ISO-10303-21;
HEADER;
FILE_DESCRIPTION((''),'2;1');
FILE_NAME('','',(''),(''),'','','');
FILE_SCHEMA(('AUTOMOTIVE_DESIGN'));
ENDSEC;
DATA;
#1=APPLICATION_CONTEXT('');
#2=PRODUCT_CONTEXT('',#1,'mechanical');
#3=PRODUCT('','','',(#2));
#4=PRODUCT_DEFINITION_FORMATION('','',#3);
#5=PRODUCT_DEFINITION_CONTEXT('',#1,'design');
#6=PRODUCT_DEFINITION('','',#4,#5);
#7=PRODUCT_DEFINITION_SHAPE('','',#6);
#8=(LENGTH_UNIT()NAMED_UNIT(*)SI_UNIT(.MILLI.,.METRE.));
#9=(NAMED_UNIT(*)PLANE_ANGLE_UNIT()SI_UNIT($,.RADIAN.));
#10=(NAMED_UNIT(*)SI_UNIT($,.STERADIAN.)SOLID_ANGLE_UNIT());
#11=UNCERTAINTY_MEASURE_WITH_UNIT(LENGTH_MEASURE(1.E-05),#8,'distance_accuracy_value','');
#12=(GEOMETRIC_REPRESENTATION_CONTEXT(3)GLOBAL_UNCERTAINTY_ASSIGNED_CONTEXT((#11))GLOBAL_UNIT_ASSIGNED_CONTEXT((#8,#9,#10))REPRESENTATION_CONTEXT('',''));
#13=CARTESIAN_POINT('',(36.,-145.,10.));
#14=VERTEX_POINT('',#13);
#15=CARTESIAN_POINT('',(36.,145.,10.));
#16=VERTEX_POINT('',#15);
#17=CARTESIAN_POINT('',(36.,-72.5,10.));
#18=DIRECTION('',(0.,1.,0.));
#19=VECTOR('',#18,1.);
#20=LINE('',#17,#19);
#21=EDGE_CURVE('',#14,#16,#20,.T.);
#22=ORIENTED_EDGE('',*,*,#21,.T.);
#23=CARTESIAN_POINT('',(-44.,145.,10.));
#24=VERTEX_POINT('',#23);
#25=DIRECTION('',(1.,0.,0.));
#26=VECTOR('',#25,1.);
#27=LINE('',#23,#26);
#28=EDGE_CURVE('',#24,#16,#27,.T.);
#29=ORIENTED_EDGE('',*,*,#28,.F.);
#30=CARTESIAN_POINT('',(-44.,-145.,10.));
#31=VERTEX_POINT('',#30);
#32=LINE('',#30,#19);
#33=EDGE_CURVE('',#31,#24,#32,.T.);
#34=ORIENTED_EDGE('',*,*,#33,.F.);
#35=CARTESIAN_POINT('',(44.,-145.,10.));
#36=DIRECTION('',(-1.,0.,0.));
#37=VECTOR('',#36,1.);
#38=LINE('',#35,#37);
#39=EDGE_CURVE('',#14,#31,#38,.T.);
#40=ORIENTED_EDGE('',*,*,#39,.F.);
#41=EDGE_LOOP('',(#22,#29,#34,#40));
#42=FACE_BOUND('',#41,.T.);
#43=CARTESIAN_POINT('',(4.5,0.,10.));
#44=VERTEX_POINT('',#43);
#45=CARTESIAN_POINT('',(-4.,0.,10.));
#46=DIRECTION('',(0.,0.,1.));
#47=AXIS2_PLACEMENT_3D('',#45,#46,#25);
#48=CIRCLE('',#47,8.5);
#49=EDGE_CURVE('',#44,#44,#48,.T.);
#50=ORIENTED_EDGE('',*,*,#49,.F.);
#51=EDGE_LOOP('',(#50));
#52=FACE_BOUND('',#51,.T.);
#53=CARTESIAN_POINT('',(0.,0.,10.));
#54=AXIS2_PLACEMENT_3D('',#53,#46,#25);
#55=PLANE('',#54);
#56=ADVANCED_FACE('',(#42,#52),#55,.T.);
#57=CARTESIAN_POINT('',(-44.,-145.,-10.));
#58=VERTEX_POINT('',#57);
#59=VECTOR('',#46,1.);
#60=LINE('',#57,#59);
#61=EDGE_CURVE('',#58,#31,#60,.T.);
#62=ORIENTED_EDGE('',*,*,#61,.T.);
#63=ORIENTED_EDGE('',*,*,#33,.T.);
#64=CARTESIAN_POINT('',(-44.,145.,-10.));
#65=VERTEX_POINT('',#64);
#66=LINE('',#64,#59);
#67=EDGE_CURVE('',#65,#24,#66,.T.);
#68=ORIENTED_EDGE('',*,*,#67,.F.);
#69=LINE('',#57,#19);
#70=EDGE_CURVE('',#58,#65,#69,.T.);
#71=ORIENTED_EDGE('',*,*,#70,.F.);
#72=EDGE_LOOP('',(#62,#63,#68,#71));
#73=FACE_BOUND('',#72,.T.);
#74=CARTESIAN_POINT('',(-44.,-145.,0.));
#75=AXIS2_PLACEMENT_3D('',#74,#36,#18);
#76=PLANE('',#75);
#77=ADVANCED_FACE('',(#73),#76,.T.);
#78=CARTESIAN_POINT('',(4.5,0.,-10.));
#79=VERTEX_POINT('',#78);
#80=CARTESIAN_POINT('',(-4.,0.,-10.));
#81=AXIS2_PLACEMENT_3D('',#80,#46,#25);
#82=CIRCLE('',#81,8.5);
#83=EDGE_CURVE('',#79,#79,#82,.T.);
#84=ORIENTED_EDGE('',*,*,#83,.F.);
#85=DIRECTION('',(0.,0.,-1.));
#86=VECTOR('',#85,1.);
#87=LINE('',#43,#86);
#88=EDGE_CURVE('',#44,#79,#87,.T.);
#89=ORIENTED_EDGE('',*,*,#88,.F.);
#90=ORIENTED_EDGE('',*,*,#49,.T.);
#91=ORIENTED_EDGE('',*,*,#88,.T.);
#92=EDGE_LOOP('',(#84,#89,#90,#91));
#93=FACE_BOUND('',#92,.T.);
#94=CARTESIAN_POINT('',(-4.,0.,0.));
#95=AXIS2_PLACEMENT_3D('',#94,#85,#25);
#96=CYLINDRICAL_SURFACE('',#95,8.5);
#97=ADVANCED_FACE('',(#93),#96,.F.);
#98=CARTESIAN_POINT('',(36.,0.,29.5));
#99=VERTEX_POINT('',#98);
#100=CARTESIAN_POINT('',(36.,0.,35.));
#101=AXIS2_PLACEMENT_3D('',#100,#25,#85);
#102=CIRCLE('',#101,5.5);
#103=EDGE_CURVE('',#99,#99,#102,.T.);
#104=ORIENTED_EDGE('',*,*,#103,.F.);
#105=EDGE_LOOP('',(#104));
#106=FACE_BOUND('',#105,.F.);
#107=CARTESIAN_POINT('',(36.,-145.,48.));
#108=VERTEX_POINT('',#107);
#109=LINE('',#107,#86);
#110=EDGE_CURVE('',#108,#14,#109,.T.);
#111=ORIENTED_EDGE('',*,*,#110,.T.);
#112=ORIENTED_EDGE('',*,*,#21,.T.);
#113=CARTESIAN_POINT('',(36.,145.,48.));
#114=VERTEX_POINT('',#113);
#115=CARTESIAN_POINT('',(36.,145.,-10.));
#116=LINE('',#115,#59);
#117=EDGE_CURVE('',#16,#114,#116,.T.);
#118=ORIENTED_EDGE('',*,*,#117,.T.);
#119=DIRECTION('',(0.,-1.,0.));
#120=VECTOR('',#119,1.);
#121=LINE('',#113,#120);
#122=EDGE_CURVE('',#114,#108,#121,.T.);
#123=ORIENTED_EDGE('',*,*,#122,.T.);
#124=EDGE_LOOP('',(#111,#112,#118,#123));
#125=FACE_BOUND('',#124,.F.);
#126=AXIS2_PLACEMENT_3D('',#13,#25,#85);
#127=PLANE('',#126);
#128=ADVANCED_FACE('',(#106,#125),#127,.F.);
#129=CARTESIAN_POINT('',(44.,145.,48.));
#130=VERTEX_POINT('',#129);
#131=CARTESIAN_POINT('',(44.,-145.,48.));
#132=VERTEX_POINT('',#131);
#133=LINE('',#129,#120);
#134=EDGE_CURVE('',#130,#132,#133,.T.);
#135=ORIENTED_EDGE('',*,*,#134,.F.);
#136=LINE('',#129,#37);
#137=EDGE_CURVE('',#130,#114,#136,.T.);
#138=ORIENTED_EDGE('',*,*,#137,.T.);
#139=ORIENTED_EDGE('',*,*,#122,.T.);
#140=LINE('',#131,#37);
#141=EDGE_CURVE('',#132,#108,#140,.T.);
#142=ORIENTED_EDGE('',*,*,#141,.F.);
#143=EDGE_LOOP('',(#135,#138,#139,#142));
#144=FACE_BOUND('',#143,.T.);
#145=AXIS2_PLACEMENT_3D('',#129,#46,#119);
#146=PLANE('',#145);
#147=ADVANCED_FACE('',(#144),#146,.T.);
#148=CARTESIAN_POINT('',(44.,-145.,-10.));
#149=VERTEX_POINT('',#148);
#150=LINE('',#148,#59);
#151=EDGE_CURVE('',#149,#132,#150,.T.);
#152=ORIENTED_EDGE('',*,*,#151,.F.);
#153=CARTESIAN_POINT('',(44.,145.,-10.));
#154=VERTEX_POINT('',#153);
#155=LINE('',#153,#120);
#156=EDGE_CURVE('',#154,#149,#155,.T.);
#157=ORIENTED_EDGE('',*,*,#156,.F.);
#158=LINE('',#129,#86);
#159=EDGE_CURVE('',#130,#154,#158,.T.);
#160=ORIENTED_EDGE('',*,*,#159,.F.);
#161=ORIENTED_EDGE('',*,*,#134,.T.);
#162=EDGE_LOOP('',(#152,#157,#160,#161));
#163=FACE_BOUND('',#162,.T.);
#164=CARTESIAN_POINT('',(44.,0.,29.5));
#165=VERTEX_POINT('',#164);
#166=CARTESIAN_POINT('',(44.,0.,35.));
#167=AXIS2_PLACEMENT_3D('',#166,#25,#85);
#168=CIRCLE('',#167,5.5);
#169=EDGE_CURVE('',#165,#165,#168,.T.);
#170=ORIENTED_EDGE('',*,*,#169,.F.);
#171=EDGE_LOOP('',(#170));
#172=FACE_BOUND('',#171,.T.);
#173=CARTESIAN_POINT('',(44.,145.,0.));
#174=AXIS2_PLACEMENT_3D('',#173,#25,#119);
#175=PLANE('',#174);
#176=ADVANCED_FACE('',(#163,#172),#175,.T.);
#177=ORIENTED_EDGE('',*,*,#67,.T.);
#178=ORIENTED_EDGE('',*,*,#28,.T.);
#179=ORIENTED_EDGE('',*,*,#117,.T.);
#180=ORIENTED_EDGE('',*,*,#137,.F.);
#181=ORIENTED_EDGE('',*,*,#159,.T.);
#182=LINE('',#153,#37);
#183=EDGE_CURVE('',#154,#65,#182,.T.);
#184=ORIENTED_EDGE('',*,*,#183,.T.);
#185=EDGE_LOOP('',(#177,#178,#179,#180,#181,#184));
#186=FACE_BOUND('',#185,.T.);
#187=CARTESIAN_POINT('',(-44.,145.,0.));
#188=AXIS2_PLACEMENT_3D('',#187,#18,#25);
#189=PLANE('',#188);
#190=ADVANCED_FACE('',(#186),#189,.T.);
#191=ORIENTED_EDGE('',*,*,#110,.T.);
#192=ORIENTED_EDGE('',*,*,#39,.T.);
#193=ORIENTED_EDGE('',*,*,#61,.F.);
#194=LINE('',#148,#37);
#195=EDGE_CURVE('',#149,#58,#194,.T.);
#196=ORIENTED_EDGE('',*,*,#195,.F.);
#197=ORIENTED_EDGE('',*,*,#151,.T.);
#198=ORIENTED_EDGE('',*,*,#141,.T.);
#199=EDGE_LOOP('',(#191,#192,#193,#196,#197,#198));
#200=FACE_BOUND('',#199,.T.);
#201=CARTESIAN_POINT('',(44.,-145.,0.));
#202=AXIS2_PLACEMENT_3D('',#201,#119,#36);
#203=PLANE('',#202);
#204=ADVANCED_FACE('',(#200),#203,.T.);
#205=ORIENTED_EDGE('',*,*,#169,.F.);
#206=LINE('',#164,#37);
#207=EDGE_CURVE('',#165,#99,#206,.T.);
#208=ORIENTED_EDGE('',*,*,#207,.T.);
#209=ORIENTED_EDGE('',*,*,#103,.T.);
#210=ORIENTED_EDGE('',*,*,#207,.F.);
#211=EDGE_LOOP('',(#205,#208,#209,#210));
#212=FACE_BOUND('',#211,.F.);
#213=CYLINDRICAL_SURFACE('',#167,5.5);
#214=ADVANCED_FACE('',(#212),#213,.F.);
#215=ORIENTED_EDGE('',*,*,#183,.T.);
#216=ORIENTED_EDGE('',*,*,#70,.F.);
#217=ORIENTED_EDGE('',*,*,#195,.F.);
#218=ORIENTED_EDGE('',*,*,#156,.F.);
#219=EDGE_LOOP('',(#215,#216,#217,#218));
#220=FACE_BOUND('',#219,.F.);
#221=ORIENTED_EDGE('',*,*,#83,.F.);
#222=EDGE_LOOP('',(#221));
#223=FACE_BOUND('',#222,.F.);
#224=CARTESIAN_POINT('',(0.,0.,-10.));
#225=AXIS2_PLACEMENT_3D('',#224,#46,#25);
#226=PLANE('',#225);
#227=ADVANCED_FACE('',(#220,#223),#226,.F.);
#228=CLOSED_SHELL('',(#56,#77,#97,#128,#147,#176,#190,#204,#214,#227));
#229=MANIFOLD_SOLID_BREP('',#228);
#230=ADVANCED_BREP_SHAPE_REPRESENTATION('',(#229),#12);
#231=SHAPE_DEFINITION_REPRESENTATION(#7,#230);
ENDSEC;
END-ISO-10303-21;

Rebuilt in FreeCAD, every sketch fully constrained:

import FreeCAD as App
import Part
import Sketcher
from FreeCAD import Vector
Q = App.Units.Quantity

doc = App.newDocument("Part")
body = doc.addObject("PartDesign::Body", "Body")

# Sketch on XY plane
sketch1 = body.newObject("Sketcher::SketchObject", "Sketch")
sketch1.AttachmentSupport = (doc.getObject("XY_Plane"), [""])
sketch1.MapMode = "FlatFace"
sketch1.addGeometry([
    Part.LineSegment(Vector(44, 145, 0), Vector(-44, 145, 0)),  # 0
    Part.LineSegment(Vector(-44, 145, 0), Vector(-44, -145, 0)),  # 1
    Part.LineSegment(Vector(-44, -145, 0), Vector(44, -145, 0)),  # 2
    Part.LineSegment(Vector(44, -145, 0), Vector(44, 145, 0)),  # 3
    Part.Circle(Vector(-4, 0, 0), Vector(0, 0, 1), 8),  # 4
], False)
sketch1.addConstraint([
    Sketcher.Constraint("Coincident", 0, 2, 1, 1),
    Sketcher.Constraint("Coincident", 1, 2, 2, 1),
    Sketcher.Constraint("Coincident", 2, 2, 3, 1),
    Sketcher.Constraint("Coincident", 3, 2, 0, 1),
    Sketcher.Constraint("Horizontal", 0),
    Sketcher.Constraint("Vertical", 1),
    Sketcher.Constraint("Horizontal", 2),
    Sketcher.Constraint("Vertical", 3),
    Sketcher.Constraint("Symmetric", 0, 2, 2, 2, -1, 1),
    Sketcher.Constraint("PointOnObject", 4, 3, -1),
    Sketcher.Constraint("Diameter", 4, Q("17 mm")),
    Sketcher.Constraint("DistanceX", 0, 2, 0, 1, Q("88 mm")),
    Sketcher.Constraint("DistanceY", 1, 2, 1, 1, Q("290 mm")),
    Sketcher.Constraint("DistanceX", 0, 2, 4, 3, Q("40 mm")),
])
pad1 = body.newObject("PartDesign::Pad", "Pad")
pad1.Profile = sketch1
pad1.Length = 20
pad1.Midplane = True

# Sketch on YZ plane
sketch2 = body.newObject("Sketcher::SketchObject", "Sketch001")
sketch2.AttachmentSupport = (doc.getObject("YZ_Plane"), [""])
sketch2.MapMode = "FlatFace"
sketch2.AttachmentOffset = App.Placement(Vector(0, 0, 44), App.Rotation())
sketch2.addGeometry([
    Part.LineSegment(Vector(-145, -10, 0), Vector(145, -10, 0)),  # 0
    Part.LineSegment(Vector(145, -10, 0), Vector(145, 48, 0)),  # 1
    Part.LineSegment(Vector(145, 48, 0), Vector(-145, 48, 0)),  # 2
    Part.LineSegment(Vector(-145, 48, 0), Vector(-145, -10, 0)),  # 3
    Part.Circle(Vector(0, 35, 0), Vector(0, 0, 1), 6),  # 4
], False)
sketch2.addConstraint([
    Sketcher.Constraint("Coincident", 0, 2, 1, 1),
    Sketcher.Constraint("Coincident", 1, 2, 2, 1),
    Sketcher.Constraint("Coincident", 2, 2, 3, 1),
    Sketcher.Constraint("Coincident", 3, 2, 0, 1),
    Sketcher.Constraint("Horizontal", 0),
    Sketcher.Constraint("Vertical", 1),
    Sketcher.Constraint("Horizontal", 2),
    Sketcher.Constraint("Vertical", 3),
    Sketcher.Constraint("PointOnObject", 4, 3, -2),
    Sketcher.Constraint("Diameter", 4, Q("11 mm")),
    Sketcher.Constraint("DistanceY", 1, 1, 1, 2, Q("58 mm")),
    Sketcher.Constraint("DistanceX", -1, 1, 0, 2, Q("145 mm")),
    Sketcher.Constraint("DistanceX", 2, 2, -1, 1, Q("145 mm")),
    Sketcher.Constraint("DistanceY", -1, 1, 4, 3, Q("35 mm")),
    Sketcher.Constraint("DistanceY", 0, 2, -1, 1, Q("10 mm")),
])
pad2 = body.newObject("PartDesign::Pad", "Pad001")
pad2.Profile = sketch2
pad2.Length = 8
pad2.Reversed = True

doc.recompute()
